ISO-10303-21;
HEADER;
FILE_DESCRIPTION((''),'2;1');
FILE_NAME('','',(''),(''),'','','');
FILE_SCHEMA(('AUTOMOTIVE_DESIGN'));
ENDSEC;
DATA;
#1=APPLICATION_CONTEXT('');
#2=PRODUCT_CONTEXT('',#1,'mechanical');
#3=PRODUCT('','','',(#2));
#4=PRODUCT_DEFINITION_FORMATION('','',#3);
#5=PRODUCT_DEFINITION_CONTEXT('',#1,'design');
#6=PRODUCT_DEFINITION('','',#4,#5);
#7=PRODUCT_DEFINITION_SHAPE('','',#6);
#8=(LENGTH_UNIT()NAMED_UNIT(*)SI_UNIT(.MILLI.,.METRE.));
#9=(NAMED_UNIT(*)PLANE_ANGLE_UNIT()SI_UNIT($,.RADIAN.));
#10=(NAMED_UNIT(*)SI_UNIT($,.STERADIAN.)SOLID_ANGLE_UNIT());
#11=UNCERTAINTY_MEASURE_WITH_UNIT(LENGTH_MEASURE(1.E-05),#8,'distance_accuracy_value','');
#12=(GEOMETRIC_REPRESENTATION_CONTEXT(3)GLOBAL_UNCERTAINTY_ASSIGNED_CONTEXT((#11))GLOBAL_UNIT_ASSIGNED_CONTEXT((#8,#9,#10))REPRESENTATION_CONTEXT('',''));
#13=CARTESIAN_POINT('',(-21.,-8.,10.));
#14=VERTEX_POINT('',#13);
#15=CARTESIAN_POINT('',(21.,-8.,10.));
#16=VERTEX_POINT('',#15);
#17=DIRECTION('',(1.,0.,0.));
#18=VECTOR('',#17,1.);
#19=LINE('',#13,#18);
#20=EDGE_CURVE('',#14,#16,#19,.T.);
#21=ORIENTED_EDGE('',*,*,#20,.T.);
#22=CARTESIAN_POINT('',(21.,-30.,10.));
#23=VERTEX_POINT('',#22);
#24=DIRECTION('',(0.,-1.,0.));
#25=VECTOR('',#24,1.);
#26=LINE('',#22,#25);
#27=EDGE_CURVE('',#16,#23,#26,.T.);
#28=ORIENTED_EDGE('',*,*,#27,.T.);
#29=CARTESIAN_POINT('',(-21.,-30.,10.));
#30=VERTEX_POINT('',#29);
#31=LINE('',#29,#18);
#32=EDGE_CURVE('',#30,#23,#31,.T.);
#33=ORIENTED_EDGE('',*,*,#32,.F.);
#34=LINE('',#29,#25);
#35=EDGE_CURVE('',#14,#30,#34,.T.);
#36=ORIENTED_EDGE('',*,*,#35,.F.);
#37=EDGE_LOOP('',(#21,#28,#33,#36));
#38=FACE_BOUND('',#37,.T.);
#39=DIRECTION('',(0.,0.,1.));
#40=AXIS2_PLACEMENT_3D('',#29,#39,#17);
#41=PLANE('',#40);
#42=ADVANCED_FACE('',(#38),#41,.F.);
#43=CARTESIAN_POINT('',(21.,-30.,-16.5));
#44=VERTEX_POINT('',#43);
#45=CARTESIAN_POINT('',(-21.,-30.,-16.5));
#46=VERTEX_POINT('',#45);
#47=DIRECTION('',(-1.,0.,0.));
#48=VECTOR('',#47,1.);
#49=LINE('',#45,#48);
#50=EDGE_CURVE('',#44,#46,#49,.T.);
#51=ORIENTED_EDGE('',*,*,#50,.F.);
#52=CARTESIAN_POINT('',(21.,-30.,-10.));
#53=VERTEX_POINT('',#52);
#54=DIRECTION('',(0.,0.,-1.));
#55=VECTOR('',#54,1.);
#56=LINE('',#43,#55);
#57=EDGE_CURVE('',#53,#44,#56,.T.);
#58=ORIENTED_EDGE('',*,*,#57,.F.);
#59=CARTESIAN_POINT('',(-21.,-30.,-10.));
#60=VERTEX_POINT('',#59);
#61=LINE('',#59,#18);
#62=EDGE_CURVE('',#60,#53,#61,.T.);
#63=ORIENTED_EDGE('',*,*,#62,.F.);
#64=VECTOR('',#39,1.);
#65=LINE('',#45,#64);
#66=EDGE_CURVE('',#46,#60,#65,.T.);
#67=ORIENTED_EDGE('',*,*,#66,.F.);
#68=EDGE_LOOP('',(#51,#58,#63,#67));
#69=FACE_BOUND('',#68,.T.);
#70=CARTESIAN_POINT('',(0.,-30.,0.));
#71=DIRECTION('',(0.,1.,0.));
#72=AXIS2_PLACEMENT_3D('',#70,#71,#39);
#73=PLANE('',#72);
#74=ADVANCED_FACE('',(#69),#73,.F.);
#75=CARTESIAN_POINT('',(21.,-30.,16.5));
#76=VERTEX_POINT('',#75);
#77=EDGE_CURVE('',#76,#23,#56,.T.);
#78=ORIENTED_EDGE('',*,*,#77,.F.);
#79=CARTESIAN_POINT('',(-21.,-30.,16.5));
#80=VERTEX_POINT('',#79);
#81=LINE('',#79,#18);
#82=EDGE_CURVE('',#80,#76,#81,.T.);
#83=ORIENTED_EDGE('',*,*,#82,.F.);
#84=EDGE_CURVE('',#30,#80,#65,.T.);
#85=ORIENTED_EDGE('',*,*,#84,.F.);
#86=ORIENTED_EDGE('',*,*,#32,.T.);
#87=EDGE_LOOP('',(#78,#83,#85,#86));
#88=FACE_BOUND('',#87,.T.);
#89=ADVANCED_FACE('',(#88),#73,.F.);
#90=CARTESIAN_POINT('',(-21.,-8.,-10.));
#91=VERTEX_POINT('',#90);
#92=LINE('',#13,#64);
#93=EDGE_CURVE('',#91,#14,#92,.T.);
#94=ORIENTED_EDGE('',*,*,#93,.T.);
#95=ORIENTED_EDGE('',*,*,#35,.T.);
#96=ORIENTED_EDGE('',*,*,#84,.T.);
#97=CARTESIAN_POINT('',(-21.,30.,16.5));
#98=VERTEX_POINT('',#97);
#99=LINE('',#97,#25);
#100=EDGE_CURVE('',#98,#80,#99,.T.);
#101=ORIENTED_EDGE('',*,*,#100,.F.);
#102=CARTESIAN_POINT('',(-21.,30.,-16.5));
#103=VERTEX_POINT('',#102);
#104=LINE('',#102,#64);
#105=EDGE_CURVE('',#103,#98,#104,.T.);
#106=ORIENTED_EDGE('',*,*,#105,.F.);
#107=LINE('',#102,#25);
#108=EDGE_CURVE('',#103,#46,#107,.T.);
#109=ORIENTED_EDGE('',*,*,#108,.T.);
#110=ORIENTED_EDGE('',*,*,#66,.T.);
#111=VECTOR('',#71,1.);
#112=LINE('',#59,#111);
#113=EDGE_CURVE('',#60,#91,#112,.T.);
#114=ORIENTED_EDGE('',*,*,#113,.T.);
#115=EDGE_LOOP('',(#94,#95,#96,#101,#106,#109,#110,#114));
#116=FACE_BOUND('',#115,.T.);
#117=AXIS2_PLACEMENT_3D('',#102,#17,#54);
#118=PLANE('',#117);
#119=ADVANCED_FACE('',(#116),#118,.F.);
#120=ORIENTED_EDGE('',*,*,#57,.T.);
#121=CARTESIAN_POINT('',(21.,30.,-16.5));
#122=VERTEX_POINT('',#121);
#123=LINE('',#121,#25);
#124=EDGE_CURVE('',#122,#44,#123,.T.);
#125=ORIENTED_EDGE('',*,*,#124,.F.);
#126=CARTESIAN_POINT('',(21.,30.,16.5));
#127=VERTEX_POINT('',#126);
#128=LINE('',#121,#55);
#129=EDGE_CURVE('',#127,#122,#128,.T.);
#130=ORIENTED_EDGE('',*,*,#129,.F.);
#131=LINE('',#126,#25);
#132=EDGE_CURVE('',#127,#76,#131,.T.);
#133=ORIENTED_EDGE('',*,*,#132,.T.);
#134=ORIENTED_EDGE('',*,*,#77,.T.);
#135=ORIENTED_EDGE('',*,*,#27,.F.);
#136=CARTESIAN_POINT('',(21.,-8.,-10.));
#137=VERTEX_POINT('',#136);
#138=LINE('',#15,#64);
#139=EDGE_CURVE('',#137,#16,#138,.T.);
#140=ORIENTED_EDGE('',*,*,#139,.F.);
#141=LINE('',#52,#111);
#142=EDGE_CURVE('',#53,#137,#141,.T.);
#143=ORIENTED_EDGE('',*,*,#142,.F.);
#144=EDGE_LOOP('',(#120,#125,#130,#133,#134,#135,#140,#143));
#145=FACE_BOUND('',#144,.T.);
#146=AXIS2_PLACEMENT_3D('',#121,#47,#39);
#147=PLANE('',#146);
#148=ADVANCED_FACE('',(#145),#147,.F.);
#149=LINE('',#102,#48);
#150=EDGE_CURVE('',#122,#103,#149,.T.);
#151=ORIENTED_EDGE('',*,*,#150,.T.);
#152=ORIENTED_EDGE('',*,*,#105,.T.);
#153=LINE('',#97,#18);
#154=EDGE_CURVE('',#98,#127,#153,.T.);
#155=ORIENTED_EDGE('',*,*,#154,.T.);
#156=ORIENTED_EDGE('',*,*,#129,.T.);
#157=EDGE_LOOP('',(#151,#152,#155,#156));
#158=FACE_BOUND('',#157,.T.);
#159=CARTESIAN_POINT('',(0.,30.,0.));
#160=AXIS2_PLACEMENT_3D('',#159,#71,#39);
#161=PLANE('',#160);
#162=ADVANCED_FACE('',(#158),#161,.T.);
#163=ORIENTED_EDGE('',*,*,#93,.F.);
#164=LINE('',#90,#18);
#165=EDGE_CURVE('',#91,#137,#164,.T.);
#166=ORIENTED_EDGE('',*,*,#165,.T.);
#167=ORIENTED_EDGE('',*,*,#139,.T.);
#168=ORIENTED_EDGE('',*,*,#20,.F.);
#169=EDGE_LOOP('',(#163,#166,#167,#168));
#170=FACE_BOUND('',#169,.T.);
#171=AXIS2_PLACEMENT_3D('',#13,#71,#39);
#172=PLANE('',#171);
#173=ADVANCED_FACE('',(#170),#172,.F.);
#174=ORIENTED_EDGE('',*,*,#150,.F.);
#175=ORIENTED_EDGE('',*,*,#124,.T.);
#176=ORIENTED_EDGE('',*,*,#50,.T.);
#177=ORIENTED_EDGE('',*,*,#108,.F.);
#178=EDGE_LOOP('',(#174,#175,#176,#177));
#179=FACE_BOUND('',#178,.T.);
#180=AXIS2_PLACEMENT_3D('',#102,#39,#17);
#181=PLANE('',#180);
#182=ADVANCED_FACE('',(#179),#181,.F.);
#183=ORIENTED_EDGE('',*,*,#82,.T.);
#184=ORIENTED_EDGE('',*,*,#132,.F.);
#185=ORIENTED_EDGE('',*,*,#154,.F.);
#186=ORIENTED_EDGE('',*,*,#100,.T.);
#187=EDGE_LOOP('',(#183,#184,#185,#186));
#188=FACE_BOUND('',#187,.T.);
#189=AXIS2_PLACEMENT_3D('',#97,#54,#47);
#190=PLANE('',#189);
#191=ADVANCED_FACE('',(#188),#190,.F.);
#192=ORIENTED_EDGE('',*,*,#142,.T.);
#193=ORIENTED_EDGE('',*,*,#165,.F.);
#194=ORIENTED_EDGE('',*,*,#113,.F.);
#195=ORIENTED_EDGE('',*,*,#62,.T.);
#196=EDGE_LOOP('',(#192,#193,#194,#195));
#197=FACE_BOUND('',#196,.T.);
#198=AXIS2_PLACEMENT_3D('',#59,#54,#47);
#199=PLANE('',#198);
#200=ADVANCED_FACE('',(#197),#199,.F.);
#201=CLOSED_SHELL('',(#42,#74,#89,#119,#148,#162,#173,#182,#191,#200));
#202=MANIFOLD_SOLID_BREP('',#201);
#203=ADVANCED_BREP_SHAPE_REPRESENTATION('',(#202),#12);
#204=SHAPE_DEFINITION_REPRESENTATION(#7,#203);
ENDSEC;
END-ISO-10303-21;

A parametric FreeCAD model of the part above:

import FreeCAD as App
import Part
import Sketcher
from FreeCAD import Vector


def add_polygon(sketch, points):
    """Adds a closed chain of lines whose ends are joined by coincident constraints."""
    first, n = sketch.GeometryCount, len(points)
    for a, b in zip(points, points[1:] + points[:1]):
        sketch.addGeometry(Part.LineSegment(App.Vector(*a, 0), App.Vector(*b, 0)), False)
    for i in range(n):
        sketch.addConstraint(Sketcher.Constraint("Coincident", first + i, 2, first + (i + 1) % n, 1))

doc = App.newDocument("Part")
params = doc.addObject("Spreadsheet::Sheet", "Params")
for row, (alias, value) in enumerate([
    ("sketch1_width", "42 mm"),
    ("sketch1_height", "33 mm"),
    ("pad1_length", "60 mm"),
    ("sketch2_width", "22 mm"),
    ("sketch2_height", "20 mm"),
], start=1):
    params.set(f"A{row}", alias)
    params.set(f"B{row}", "=" + value)
    params.setAlias(f"B{row}", alias)

body = doc.addObject("PartDesign::Body", "Body")

# Sketch on XZ plane
sketch1 = body.newObject("Sketcher::SketchObject", "Sketch")
sketch1.AttachmentSupport = (doc.getObject("XZ_Plane"), [""])
sketch1.MapMode = "FlatFace"
add_polygon(sketch1, [(-21, -16), (-21, 16), (21, 16), (21, -16)])  # lines 0-3
sketch1.addConstraint([
    Sketcher.Constraint("Vertical", 0),
    Sketcher.Constraint("Horizontal", 1),
    Sketcher.Constraint("Vertical", 2),
    Sketcher.Constraint("Horizontal", 3),
    Sketcher.Constraint("Symmetric", 0, 2, 2, 2, -1, 1),
    Sketcher.Constraint("DistanceX", 1, 1, 1, 2, 42.0),
    Sketcher.Constraint("DistanceY", 0, 1, 0, 2, 33.0),
])
sketch1.setExpression("Constraints[9]", "Params.sketch1_width")
sketch1.setExpression("Constraints[10]", "Params.sketch1_height")
pad1 = body.newObject("PartDesign::Pad", "Pad")
pad1.Profile = sketch1
pad1.setExpression("Length", "Params.pad1_length")
pad1.Midplane = True

# Sketch on YZ plane
sketch2 = body.newObject("Sketcher::SketchObject", "Sketch001")
sketch2.AttachmentSupport = (doc.getObject("YZ_Plane"), [""])
sketch2.MapMode = "FlatFace"
add_polygon(sketch2, [(-8, 10), (-30, 10), (-30, -10), (-8, -10)])  # lines 0-3
sketch2.addConstraint([
    Sketcher.Constraint("Horizontal", 0),
    Sketcher.Constraint("Vertical", 1),
    Sketcher.Constraint("Horizontal", 2),
    Sketcher.Constraint("Vertical", 3),
    Sketcher.Constraint("DistanceX", 0, 2, 0, 1, 22.0),
    Sketcher.Constraint("DistanceY", 1, 2, 1, 1, 20.0),
    Sketcher.Constraint("DistanceX", 0, 2, -1, 1, 30.0),
    Sketcher.Constraint("DistanceY", -1, 1, 0, 2, 10.0),
])
sketch2.setExpression("Constraints[8]", "Params.sketch2_width")
sketch2.setExpression("Constraints[9]", "Params.sketch2_height")
pocket1 = body.newObject("PartDesign::Pocket", "Pocket")
pocket1.Profile = sketch2
pocket1.Type = "ThroughAll"
pocket1.Midplane = True

doc.recompute()
